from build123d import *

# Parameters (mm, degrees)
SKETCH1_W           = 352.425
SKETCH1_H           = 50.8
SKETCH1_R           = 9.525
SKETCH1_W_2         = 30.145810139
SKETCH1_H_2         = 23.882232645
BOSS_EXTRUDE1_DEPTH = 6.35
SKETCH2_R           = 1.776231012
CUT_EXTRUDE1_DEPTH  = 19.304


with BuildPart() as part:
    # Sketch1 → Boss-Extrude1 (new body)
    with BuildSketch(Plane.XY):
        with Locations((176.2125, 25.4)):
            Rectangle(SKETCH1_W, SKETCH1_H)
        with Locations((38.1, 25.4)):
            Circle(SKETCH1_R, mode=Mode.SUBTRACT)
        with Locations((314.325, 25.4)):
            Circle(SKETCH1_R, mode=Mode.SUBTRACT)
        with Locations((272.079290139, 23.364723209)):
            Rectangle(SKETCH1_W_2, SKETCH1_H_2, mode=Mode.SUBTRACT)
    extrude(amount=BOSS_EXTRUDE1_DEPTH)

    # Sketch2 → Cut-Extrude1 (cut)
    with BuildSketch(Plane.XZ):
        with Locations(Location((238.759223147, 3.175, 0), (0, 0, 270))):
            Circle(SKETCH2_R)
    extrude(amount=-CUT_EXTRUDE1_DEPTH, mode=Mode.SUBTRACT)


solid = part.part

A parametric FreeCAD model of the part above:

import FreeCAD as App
import Part
import Sketcher
from FreeCAD import Vector
Q = App.Units.Quantity

doc = App.newDocument("Part")
body = doc.addObject("PartDesign::Body", "Body")

# Sketch on XY plane
sketch1 = body.newObject("Sketcher::SketchObject", "Sketch")
sketch1.AttachmentSupport = (doc.getObject("XY_Plane"), [""])
sketch1.MapMode = "FlatFace"
sketch1.addGeometry([
    Part.LineSegment(Vector(0, 51, 0), Vector(0, 0, 0)),  # 0
    Part.LineSegment(Vector(0, 0, 0), Vector(352, 0, 0)),  # 1
    Part.LineSegment(Vector(352, 0, 0), Vector(352, 51, 0)),  # 2
    Part.LineSegment(Vector(352, 51, 0), Vector(0, 51, 0)),  # 3
    Part.Circle(Vector(38, 25, 0), Vector(0, 0, 1), 10),  # 4
    Part.LineSegment(Vector(287, 11, 0), Vector(257, 11, 0)),  # 5
    Part.LineSegment(Vector(257, 11, 0), Vector(257, 35, 0)),  # 6
    Part.LineSegment(Vector(257, 35, 0), Vector(287, 35, 0)),  # 7
    Part.LineSegment(Vector(287, 35, 0), Vector(287, 11, 0)),  # 8
    Part.Circle(Vector(314, 25, 0), Vector(0, 0, 1), 10),  # 9
], False)
sketch1.addConstraint([
    Sketcher.Constraint("Coincident", 0, 2, 1, 1),
    Sketcher.Constraint("Coincident", 1, 2, 2, 1),
    Sketcher.Constraint("Coincident", 2, 2, 3, 1),
    Sketcher.Constraint("Coincident", 3, 2, 0, 1),
    Sketcher.Constraint("Coincident", 5, 2, 6, 1),
    Sketcher.Constraint("Coincident", 6, 2, 7, 1),
    Sketcher.Constraint("Coincident", 7, 2, 8, 1),
    Sketcher.Constraint("Coincident", 8, 2, 5, 1),
    Sketcher.Constraint("Vertical", 0),
    Sketcher.Constraint("Horizontal", 1),
    Sketcher.Constraint("Vertical", 2),
    Sketcher.Constraint("Horizontal", 3),
    Sketcher.Constraint("Horizontal", 5),
    Sketcher.Constraint("Vertical", 6),
    Sketcher.Constraint("Horizontal", 7),
    Sketcher.Constraint("Vertical", 8),
    Sketcher.Constraint("Coincident", 0, 2, -1, 1),
    Sketcher.Constraint("Equal", 4, 9),
    Sketcher.Constraint("Horizontal", 4, 3, 9, 3),
    Sketcher.Constraint("Diameter", 4, Q("0.75 in")),
    Sketcher.Constraint("DistanceY", 0, 2, 0, 1, Q("2 in")),
    Sketcher.Constraint("DistanceY", -1, 1, 4, 3, Q("1 in")),
    Sketcher.Constraint("DistanceX", -1, 1, 4, 3, Q("1.5 in")),
    Sketcher.Constraint("DistanceX", 9, 3, 1, 2, Q("1.5 in")),
    Sketcher.Constraint("DistanceX", 1, 1, 1, 2, Q("13.875 in")),
    Sketcher.Constraint("DistanceX", 5, 2, 5, 1, 30.14581),
    Sketcher.Constraint("DistanceY", 6, 1, 6, 2, 23.882233),
    Sketcher.Constraint("DistanceY", -1, 1, 6, 2, 35.30584),
    Sketcher.Constraint("DistanceX", -1, 1, 5, 2, 257.006385),
])
pad1 = body.newObject("PartDesign::Pad", "Pad")
pad1.Profile = sketch1
pad1.Length = Q("0.25 in")

# Sketch on XZ plane
sketch2 = body.newObject("Sketcher::SketchObject", "Sketch001")
sketch2.AttachmentSupport = (doc.getObject("XZ_Plane"), [""])
sketch2.MapMode = "FlatFace"
sketch2.addGeometry(Part.Circle(Vector(238.8, 3.2, 0), Vector(0, 0, 1), 1.8), False)
sketch2.addConstraint([
    Sketcher.Constraint("DistanceY", -1, 1, 0, 3, Q("0.125 in")),
    Sketcher.Constraint("Diameter", 0, 3.552462),
    Sketcher.Constraint("DistanceX", -1, 1, 0, 3, 238.759223),
])
pocket1 = body.newObject("PartDesign::Pocket", "Pocket")
pocket1.Profile = sketch2
pocket1.Length = Q("0.76 in")

doc.recompute()
